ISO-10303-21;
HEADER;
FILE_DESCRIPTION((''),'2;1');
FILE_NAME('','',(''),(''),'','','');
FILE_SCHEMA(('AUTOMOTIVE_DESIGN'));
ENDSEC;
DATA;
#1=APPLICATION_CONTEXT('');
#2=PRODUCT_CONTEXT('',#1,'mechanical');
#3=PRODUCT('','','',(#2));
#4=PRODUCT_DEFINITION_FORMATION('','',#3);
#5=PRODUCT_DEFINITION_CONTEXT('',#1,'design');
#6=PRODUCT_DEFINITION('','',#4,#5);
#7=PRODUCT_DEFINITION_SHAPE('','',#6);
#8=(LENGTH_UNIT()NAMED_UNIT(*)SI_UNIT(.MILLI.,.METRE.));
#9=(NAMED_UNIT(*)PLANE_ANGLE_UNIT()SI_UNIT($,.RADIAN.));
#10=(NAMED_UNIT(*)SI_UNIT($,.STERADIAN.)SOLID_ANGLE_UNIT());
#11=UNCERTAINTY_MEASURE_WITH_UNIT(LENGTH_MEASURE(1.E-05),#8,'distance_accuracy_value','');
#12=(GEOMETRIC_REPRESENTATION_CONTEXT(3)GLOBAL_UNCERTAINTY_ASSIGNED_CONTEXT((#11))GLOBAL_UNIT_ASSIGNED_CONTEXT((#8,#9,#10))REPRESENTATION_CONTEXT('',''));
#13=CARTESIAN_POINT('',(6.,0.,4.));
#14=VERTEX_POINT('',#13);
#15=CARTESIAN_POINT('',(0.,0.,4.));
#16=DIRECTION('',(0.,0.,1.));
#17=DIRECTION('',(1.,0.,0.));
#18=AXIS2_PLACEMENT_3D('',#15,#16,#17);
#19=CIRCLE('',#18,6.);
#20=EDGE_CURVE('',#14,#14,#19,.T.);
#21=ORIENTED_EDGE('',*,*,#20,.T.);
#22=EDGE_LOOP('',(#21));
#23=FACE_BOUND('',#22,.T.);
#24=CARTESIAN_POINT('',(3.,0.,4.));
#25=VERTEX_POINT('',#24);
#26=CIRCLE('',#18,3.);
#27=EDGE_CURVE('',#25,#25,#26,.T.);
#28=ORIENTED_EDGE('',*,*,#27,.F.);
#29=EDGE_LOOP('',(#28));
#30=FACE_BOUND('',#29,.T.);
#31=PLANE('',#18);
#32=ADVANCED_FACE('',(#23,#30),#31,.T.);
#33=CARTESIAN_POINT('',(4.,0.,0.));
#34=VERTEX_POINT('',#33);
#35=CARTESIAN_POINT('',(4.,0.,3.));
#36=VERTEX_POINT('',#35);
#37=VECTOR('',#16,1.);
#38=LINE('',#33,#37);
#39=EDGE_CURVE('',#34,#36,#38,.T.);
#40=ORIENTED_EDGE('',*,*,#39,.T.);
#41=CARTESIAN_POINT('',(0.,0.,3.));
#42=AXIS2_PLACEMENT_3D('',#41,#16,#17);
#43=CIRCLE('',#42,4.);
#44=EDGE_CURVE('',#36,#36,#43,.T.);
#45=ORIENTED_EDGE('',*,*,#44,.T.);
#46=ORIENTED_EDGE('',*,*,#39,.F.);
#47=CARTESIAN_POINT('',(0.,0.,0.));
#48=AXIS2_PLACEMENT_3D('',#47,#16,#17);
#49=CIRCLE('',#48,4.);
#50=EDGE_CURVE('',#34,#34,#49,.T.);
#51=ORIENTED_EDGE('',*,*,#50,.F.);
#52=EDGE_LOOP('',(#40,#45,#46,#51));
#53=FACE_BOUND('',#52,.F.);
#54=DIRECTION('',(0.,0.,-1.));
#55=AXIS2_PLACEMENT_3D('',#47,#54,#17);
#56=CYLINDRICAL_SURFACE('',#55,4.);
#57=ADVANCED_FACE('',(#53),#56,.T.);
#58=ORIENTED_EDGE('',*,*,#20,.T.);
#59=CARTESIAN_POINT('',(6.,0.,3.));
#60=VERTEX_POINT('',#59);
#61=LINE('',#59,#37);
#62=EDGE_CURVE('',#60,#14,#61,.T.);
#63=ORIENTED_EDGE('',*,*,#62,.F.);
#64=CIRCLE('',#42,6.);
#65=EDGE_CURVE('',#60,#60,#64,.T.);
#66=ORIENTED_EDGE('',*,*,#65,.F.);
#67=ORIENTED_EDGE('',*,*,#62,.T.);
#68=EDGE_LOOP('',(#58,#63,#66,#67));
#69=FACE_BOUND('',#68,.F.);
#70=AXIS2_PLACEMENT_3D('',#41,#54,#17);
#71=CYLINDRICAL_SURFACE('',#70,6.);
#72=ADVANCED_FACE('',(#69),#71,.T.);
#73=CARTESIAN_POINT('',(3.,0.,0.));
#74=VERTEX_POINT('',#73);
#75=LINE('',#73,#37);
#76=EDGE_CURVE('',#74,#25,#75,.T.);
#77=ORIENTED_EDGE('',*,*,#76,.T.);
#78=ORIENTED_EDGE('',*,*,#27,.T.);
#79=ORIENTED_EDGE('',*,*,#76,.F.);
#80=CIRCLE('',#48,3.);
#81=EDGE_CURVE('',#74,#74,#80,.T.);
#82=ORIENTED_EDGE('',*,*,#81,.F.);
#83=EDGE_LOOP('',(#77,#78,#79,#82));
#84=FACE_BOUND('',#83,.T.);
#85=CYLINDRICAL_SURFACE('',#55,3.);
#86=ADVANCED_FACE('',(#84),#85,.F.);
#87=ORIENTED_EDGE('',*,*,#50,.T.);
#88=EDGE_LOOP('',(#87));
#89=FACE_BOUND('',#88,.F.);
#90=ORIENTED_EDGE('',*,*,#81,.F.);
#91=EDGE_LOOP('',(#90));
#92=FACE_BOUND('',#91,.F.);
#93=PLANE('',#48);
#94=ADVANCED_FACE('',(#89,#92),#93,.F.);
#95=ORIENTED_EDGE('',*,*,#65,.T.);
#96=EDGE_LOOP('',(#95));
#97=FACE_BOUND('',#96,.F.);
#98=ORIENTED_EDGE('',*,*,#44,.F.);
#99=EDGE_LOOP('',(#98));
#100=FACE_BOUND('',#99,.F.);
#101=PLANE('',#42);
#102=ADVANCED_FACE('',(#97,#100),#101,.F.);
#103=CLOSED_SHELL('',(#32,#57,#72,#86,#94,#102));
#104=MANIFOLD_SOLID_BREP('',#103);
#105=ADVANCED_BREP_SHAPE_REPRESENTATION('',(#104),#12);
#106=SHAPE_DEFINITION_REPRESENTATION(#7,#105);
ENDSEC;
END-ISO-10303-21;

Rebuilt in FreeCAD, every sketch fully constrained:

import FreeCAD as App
import Part
import Sketcher

V = App.Vector
Q = App.Units.Quantity

doc = App.newDocument("Part")
body = doc.addObject("PartDesign::Body", "Body")

# Sketch on XY plane
sketch1 = doc.addObject("Sketcher::SketchObject", "Sketch")
body.addObject(sketch1)
sketch1.AttachmentSupport = (doc.XY_Plane, [""])
sketch1.MapMode = "FlatFace"
sketch1.addGeometry(Part.Circle(V(0, 0, 0), V(0, 0, 1), 4), False)
sketch1.addGeometry(Part.Circle(V(0, 0, 0), V(0, 0, 1), 3), False)
sketch1.addConstraint(Sketcher.Constraint("Coincident", 0, 3, -1, 1))
sketch1.addConstraint(Sketcher.Constraint("Coincident", 1, 3, -1, 1))
sketch1.addConstraint(Sketcher.Constraint("Diameter", 0, Q("8 mm")))
sketch1.addConstraint(Sketcher.Constraint("Diameter", 1, Q("6 mm")))
pad1 = doc.addObject("PartDesign::Pad", "Pad")
body.addObject(pad1)
pad1.Profile = sketch1
pad1.Length = 3

# Sketch on XY plane
sketch2 = doc.addObject("Sketcher::SketchObject", "Sketch001")
body.addObject(sketch2)
sketch2.AttachmentSupport = (doc.XY_Plane, [""])
sketch2.MapMode = "FlatFace"
sketch2.AttachmentOffset = App.Placement(V(0, 0, 3), App.Rotation())
sketch2.addGeometry(Part.Circle(V(0, 0, 0), V(0, 0, 1), 6), False)
sketch2.addGeometry(Part.Circle(V(0, 0, 0), V(0, 0, 1), 3), False)
sketch2.addConstraint(Sketcher.Constraint("Coincident", 0, 3, -1, 1))
sketch2.addConstraint(Sketcher.Constraint("Coincident", 1, 3, -1, 1))
sketch2.addConstraint(Sketcher.Constraint("Diameter", 0, Q("12 mm")))
sketch2.addConstraint(Sketcher.Constraint("Diameter", 1, Q("6 mm")))
pad2 = doc.addObject("PartDesign::Pad", "Pad001")
body.addObject(pad2)
pad2.Profile = sketch2
pad2.Length = 1

doc.recompute()
